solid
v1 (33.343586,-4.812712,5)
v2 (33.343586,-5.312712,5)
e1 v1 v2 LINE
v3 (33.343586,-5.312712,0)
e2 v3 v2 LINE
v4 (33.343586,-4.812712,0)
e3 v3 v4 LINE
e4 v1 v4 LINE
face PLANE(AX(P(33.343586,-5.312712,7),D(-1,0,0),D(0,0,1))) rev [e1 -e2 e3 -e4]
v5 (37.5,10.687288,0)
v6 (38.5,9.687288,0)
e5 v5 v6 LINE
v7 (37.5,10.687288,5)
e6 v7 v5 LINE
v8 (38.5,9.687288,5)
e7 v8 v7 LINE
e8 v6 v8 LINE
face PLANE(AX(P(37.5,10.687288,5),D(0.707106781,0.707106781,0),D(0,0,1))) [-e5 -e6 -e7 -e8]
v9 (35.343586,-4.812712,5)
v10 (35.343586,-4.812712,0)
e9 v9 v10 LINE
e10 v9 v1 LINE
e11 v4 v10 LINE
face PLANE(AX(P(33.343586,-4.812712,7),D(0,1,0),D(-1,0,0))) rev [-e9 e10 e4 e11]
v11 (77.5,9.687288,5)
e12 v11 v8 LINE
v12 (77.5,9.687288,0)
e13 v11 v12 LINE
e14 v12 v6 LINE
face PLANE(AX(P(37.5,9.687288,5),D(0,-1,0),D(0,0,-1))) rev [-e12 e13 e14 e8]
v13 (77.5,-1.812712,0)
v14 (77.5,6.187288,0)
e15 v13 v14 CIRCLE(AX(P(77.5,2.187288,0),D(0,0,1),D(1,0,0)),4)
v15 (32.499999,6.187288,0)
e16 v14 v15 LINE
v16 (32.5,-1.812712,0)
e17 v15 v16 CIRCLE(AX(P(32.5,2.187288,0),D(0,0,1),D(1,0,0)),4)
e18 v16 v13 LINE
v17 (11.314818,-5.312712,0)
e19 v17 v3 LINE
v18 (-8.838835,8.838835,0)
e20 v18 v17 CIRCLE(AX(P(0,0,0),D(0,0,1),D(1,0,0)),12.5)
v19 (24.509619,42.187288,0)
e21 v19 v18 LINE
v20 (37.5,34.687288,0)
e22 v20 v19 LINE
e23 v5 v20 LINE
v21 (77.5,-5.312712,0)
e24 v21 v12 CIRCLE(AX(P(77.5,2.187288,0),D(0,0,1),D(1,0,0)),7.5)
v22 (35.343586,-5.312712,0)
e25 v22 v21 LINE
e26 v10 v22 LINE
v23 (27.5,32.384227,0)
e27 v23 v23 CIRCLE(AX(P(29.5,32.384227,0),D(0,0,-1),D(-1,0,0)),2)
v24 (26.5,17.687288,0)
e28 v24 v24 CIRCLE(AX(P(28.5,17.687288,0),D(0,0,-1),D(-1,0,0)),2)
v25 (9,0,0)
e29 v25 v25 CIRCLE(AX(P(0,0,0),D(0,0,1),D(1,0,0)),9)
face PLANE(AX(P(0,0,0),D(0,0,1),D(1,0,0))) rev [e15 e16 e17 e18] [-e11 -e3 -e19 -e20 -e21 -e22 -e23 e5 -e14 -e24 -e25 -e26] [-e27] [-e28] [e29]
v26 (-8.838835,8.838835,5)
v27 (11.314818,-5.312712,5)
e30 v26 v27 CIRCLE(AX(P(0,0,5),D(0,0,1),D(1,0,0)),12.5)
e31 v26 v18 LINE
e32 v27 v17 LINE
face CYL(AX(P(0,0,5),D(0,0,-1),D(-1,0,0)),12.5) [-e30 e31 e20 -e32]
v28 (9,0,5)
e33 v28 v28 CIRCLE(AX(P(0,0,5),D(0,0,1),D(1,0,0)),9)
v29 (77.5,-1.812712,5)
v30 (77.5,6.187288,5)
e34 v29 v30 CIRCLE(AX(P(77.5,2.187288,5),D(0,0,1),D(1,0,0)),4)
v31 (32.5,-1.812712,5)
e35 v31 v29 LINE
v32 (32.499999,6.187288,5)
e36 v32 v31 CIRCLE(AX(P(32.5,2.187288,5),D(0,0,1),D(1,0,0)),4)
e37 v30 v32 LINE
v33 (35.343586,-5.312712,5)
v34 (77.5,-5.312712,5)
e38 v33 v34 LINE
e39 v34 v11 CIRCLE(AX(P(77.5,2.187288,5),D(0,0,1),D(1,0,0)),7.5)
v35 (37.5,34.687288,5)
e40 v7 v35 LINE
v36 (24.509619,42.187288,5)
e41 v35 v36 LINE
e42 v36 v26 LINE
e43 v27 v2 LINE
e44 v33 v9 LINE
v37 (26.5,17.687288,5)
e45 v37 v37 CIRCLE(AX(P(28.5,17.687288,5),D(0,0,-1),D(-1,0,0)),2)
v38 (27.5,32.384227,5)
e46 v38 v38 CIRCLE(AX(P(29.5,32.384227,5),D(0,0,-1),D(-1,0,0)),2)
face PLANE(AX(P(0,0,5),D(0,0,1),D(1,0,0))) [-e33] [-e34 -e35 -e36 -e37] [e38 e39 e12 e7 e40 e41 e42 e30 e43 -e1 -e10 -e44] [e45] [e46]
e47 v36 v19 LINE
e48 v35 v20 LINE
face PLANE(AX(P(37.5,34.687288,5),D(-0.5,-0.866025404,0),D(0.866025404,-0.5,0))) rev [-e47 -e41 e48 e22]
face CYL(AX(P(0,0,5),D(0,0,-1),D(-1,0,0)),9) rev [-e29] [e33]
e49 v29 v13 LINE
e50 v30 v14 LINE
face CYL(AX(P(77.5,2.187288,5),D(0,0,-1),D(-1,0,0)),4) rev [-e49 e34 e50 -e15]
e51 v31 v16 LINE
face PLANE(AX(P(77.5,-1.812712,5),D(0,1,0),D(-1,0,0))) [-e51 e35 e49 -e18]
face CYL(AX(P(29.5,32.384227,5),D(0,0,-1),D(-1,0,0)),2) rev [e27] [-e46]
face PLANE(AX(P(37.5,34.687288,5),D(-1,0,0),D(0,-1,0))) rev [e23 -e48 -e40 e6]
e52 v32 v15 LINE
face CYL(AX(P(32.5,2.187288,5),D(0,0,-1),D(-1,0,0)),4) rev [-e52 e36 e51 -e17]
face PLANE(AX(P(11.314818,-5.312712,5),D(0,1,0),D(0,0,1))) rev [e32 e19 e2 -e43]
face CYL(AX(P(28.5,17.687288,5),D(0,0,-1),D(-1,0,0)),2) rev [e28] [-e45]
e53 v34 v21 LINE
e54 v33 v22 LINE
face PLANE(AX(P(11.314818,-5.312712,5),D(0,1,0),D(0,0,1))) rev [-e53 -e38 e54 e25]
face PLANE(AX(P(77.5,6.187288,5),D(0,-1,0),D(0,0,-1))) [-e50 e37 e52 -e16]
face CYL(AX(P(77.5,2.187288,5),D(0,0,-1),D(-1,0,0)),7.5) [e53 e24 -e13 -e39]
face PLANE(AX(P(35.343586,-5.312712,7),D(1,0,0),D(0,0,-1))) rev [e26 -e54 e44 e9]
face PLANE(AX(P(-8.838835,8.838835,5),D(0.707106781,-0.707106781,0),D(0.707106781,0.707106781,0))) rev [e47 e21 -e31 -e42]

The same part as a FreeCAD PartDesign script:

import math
import FreeCAD as App
import Part
import Sketcher
Q = App.Units.Quantity


def edges_at(feature, points):
    """Names of the edges that pass closest to the given points."""
    edges = feature.Shape.Edges
    near = lambda p: min(range(len(edges)), key=lambda i: edges[i].distToShape(Part.Vertex(*p))[0])
    return sorted({f"Edge{near(p) + 1}" for p in points})


def add_polygon(sketch, points):
    """Adds a closed chain of lines whose ends are joined by coincident constraints."""
    first, n = sketch.GeometryCount, len(points)
    for a, b in zip(points, points[1:] + points[:1]):
        sketch.addGeometry(Part.LineSegment(App.Vector(*a, 0), App.Vector(*b, 0)), False)
    for i in range(n):
        sketch.addConstraint(Sketcher.Constraint("Coincident", first + i, 2, first + (i + 1) % n, 1))

doc = App.newDocument("Part")
body = doc.addObject("PartDesign::Body", "Body")

sketch1 = doc.addObject("Sketcher::SketchObject", "Sketch")
body.addObject(sketch1)
sketch1.AttachmentSupport = (doc.XY_Plane, [""])
sketch1.MapMode = "FlatFace"
sketch1.addGeometry(Part.LineSegment(App.Vector(37.5, 9.7, 0), App.Vector(37.5, 34.7, 0)), False)
sketch1.addGeometry(Part.LineSegment(App.Vector(37.5, 34.7, 0), App.Vector(24.5, 42.2, 0)), False)
sketch1.addGeometry(Part.LineSegment(App.Vector(24.5, 42.2, 0), App.Vector(-8.8, 8.8, 0)), False)
sketch1.addGeometry(Part.ArcOfCircle(Part.Circle(App.Vector(0, 0, 0), App.Vector(0, 0, 1), 12.5), math.radians(135), math.radians(335)), False)
sketch1.addGeometry(Part.LineSegment(App.Vector(11.3, -5.3, 0), App.Vector(77.5, -5.3, 0)), False)
sketch1.addGeometry(Part.ArcOfCircle(Part.Circle(App.Vector(77.5, 2.2, 0), App.Vector(0, 0, 1), 7.5), math.radians(-90), math.radians(90)), False)
sketch1.addGeometry(Part.LineSegment(App.Vector(77.5, 9.7, 0), App.Vector(37.5, 9.7, 0)), False)
sketch1.addGeometry(Part.ArcOfCircle(Part.Circle(App.Vector(77.5, 2.2, 0), App.Vector(0, 0, 1), 4), math.radians(-90), math.radians(90)), False)
sketch1.addGeometry(Part.LineSegment(App.Vector(77.5, -1.8, 0), App.Vector(32.5, -1.8, 0)), False)
sketch1.addGeometry(Part.ArcOfCircle(Part.Circle(App.Vector(32.5, 2.2, 0), App.Vector(0, 0, 1), 4), math.radians(90), math.radians(270)), False)
sketch1.addGeometry(Part.LineSegment(App.Vector(32.5, 6.2, 0), App.Vector(77.5, 6.2, 0)), False)
sketch1.addGeometry(Part.Circle(App.Vector(0, 0, 0), App.Vector(0, 0, 1), 9), False)
sketch1.addConstraint(Sketcher.Constraint("Coincident", 0, 2, 1, 1))
sketch1.addConstraint(Sketcher.Constraint("Coincident", 1, 2, 2, 1))
sketch1.addConstraint(Sketcher.Constraint("Tangent", 2, 2, 3, 1))
sketch1.addConstraint(Sketcher.Constraint("Coincident", 3, 2, 4, 1))
sketch1.addConstraint(Sketcher.Constraint("Tangent", 4, 2, 5, 1))
sketch1.addConstraint(Sketcher.Constraint("Tangent", 5, 2, 6, 1))
sketch1.addConstraint(Sketcher.Constraint("Coincident", 6, 2, 0, 1))
sketch1.addConstraint(Sketcher.Constraint("Tangent", 7, 1, 8, 1))
sketch1.addConstraint(Sketcher.Constraint("Tangent", 8, 2, 9, 2))
sketch1.addConstraint(Sketcher.Constraint("Tangent", 9, 1, 10, 1))
sketch1.addConstraint(Sketcher.Constraint("Tangent", 10, 2, 7, 2))
sketch1.addConstraint(Sketcher.Constraint("Vertical", 0))
sketch1.addConstraint(Sketcher.Constraint("Horizontal", 4))
sketch1.addConstraint(Sketcher.Constraint("Horizontal", 6))
sketch1.addConstraint(Sketcher.Constraint("Horizontal", 8))
sketch1.addConstraint(Sketcher.Constraint("Horizontal", 10))
sketch1.addConstraint(Sketcher.Constraint("Coincident", 3, 3, -1, 1))
sketch1.addConstraint(Sketcher.Constraint("Coincident", 11, 3, -1, 1))
sketch1.addConstraint(Sketcher.Constraint("Coincident", 7, 3, 5, 3))
sketch1.addConstraint(Sketcher.Constraint("Diameter", 11, Q("18 mm")))
sketch1.addConstraint(Sketcher.Constraint("Radius", 7, Q("4 mm")))
sketch1.addConstraint(Sketcher.Constraint("Radius", 3, Q("12.5 mm")))
sketch1.addConstraint(Sketcher.Constraint("Radius", 5, Q("7.5 mm")))
sketch1.addConstraint(Sketcher.Constraint("DistanceX", 6, 2, 6, 1, Q("40 mm")))
sketch1.addConstraint(Sketcher.Constraint("DistanceX", 8, 2, 8, 1, Q("45 mm")))
sketch1.addConstraint(Sketcher.Constraint("DistanceY", 0, 1, 0, 2, Q("25 mm")))
sketch1.addConstraint(Sketcher.Constraint("Angle", 1, Q("150 deg")))
sketch1.addConstraint(Sketcher.Constraint("Angle", 2, Q("-135 deg")))
sketch1.addConstraint(Sketcher.Constraint("Distance", 1, Q("15 mm")))
sketch1.addConstraint(Sketcher.Constraint("DistanceX", -1, 1, 5, 3, Q("77.5 mm")))
pad1 = doc.addObject("PartDesign::Pad", "Pad")
body.addObject(pad1)
pad1.Profile = sketch1
pad1.Length = 5

sketch2 = doc.addObject("Sketcher::SketchObject", "Sketch001")
body.addObject(sketch2)
sketch2.AttachmentSupport = (doc.XY_Plane, [""])
sketch2.MapMode = "FlatFace"
sketch2.addGeometry(Part.Circle(App.Vector(28.5, 17.7, 0), App.Vector(0, 0, 1), 2), False)
sketch2.addGeometry(Part.Circle(App.Vector(29.5, 32.4, 0), App.Vector(0, 0, 1), 2), False)
sketch2.addConstraint(Sketcher.Constraint("Equal", 0, 1))
sketch2.addConstraint(Sketcher.Constraint("Diameter", 0, Q("4 mm")))
sketch2.addConstraint(Sketcher.Constraint("DistanceX", 0, 3, 1, 3, Q("1 mm")))
sketch2.addConstraint(Sketcher.Constraint("DistanceX", -1, 1, 0, 3, Q("28.5 mm")))
sketch2.addConstraint(Sketcher.Constraint("DistanceY", -1, 1, 0, 3, Q("17.687288 mm")))
sketch2.addConstraint(Sketcher.Constraint("DistanceY", 0, 3, 1, 3, Q("14.696938 mm")))
pocket1 = doc.addObject("PartDesign::Pocket", "Pocket")
body.addObject(pocket1)
pocket1.Profile = sketch2
pocket1.Length = 5
pocket1.Reversed = True
doc.recompute()

chamfer = doc.addObject("PartDesign::Chamfer", "Chamfer")
body.addObject(chamfer)
chamfer.Base = (pocket1, edges_at(pocket1, [(37.5, 9.687, 2.5)]))
chamfer.Size = 1

sketch3 = doc.addObject("Sketcher::SketchObject", "Sketch002")
body.addObject(sketch3)
sketch3.AttachmentSupport = (doc.XY_Plane, [""])
sketch3.MapMode = "FlatFace"
add_polygon(sketch3, [(35.3, -4.8), (35.3, -5.3), (33.3, -5.3), (33.3, -4.8)])
sketch3.addConstraint(Sketcher.Constraint("Vertical", 0))
sketch3.addConstraint(Sketcher.Constraint("Horizontal", 1))
sketch3.addConstraint(Sketcher.Constraint("Vertical", 2))
sketch3.addConstraint(Sketcher.Constraint("Horizontal", 3))
sketch3.addConstraint(Sketcher.Constraint("DistanceX", 1, 2, 1, 1, Q("2 mm")))
sketch3.addConstraint(Sketcher.Constraint("DistanceY", 0, 2, 0, 1, Q("0.5 mm")))
sketch3.addConstraint(Sketcher.Constraint("DistanceY", 0, 2, -1, 1, Q("5.312712 mm")))
sketch3.addConstraint(Sketcher.Constraint("DistanceX", -1, 1, 0, 2, Q("35.343586 mm")))
pocket2 = doc.addObject("PartDesign::Pocket", "Pocket001")
body.addObject(pocket2)
pocket2.Profile = sketch3
pocket2.Length = 7
pocket2.Reversed = True

doc.recompute()
